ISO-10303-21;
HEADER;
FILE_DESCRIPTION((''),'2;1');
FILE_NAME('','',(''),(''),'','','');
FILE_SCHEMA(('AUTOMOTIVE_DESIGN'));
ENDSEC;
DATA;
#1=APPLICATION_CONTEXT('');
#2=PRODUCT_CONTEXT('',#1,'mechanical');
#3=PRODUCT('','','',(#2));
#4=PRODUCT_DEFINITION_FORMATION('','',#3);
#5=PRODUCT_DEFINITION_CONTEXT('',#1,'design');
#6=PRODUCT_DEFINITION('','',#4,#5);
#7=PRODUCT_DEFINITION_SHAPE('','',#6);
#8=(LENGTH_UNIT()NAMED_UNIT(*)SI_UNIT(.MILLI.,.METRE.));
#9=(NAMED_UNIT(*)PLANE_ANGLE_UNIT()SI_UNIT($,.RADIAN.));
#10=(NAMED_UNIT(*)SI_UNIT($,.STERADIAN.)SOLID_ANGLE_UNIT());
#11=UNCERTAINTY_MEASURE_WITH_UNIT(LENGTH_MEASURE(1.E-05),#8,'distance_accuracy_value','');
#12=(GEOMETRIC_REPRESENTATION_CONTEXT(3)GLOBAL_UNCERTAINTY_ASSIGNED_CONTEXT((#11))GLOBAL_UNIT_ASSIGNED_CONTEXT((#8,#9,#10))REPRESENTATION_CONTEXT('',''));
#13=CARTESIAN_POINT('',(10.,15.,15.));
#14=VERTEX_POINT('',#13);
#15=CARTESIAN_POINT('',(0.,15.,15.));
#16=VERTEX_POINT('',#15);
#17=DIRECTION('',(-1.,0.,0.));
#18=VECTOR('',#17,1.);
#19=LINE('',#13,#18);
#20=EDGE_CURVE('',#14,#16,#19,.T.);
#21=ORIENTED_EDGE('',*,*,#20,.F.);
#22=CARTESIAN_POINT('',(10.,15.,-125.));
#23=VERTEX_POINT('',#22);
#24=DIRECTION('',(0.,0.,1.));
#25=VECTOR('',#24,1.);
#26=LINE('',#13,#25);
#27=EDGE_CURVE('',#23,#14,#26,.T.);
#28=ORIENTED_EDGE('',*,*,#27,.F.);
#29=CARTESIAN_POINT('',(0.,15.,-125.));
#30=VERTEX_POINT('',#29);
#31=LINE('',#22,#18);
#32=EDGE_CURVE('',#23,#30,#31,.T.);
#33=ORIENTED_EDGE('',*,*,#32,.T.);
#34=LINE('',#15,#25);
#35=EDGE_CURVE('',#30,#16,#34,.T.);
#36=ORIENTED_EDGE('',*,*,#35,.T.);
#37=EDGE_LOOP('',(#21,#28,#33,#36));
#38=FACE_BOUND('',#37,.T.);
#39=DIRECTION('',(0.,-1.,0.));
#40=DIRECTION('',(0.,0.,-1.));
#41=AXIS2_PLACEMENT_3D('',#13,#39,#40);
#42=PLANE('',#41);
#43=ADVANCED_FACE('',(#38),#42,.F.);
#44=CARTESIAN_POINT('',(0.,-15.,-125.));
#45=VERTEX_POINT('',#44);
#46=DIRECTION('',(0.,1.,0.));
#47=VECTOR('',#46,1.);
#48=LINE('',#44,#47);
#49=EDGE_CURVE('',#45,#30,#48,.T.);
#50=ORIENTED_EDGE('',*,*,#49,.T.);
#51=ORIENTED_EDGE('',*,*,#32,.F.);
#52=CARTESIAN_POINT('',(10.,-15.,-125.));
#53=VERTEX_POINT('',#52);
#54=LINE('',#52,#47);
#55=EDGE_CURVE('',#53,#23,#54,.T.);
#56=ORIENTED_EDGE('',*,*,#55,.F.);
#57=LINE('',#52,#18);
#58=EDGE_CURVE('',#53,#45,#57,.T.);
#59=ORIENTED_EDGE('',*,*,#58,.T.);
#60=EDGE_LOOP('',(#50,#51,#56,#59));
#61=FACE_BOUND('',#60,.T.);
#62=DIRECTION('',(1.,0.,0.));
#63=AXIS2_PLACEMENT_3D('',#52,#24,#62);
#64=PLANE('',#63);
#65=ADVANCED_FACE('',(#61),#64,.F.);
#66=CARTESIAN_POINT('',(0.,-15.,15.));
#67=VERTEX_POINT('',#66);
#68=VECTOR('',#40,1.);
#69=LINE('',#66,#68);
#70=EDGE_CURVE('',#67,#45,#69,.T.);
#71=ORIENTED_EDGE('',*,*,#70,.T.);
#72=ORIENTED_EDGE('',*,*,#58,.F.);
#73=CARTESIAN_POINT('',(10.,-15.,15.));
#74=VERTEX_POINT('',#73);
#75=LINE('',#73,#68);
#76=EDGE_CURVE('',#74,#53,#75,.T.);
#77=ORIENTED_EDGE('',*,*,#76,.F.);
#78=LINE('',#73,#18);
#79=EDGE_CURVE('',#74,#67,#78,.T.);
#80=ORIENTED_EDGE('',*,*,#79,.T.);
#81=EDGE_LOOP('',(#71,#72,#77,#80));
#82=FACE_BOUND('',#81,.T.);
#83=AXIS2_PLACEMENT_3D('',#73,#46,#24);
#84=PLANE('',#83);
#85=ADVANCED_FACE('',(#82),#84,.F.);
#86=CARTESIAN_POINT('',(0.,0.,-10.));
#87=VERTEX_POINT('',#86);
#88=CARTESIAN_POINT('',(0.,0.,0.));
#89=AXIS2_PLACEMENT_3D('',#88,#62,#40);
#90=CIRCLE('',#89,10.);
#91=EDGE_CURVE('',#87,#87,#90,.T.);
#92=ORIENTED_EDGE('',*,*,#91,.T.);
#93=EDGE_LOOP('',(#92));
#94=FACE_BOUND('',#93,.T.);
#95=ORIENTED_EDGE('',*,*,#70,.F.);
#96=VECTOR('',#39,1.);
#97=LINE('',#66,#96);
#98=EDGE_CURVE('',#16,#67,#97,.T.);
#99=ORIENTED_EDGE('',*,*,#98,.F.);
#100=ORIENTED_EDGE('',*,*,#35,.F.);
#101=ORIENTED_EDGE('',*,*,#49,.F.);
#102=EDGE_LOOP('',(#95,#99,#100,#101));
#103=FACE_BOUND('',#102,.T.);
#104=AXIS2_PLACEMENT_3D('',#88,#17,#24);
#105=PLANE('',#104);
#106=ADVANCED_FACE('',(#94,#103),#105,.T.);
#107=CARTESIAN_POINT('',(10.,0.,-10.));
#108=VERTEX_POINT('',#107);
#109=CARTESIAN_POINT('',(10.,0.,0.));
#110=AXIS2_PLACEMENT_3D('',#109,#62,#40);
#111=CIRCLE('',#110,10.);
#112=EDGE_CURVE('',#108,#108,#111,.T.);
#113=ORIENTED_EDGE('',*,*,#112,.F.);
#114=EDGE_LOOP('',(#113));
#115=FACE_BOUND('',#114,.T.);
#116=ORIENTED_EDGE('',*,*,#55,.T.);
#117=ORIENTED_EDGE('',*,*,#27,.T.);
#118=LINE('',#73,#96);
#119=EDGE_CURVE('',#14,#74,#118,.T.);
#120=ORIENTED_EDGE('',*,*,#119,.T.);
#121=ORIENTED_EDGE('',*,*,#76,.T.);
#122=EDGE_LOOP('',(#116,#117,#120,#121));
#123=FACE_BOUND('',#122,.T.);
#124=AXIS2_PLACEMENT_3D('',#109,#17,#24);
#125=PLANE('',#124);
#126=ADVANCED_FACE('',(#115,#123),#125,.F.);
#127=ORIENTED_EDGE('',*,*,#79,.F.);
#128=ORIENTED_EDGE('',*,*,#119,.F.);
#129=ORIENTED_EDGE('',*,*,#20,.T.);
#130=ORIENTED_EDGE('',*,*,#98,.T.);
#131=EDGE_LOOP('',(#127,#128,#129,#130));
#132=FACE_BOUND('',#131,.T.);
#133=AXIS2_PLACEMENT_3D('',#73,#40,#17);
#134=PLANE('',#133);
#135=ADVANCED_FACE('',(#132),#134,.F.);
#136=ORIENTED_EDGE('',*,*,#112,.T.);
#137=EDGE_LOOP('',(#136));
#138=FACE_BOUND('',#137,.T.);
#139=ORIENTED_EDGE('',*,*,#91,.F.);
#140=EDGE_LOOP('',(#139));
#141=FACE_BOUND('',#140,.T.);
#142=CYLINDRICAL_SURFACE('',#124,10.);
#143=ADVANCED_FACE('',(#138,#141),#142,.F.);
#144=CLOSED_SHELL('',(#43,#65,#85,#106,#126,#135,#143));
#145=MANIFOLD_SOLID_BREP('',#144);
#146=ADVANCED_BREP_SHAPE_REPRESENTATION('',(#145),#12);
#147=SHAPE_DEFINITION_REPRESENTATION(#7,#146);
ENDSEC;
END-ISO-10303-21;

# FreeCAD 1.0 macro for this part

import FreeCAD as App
import Part
import Sketcher

V = App.Vector


def add_polygon(sketch, points):
    """Adds a closed chain of lines whose ends are joined by coincident constraints."""
    first, n = sketch.GeometryCount, len(points)
    for a, b in zip(points, points[1:] + points[:1]):
        sketch.addGeometry(Part.LineSegment(App.Vector(*a, 0), App.Vector(*b, 0)), False)
    for i in range(n):
        sketch.addConstraint(Sketcher.Constraint("Coincident", first + i, 2, first + (i + 1) % n, 1))

doc = App.newDocument("Part")
body = doc.addObject("PartDesign::Body", "Body")

# Sketch on YZ plane
sketch1 = doc.addObject("Sketcher::SketchObject", "Sketch")
body.addObject(sketch1)
sketch1.AttachmentSupport = (doc.YZ_Plane, [""])
sketch1.MapMode = "FlatFace"
add_polygon(sketch1, [(15, 15), (-15, 15), (-15, -125), (15, -125)])  # lines 0-3
sketch1.addGeometry(Part.Circle(V(0, 0, 0), V(0, 0, 1), 10), False)  # 4
sketch1.addConstraint([
    Sketcher.Constraint("Horizontal", 0),
    Sketcher.Constraint("Vertical", 1),
    Sketcher.Constraint("Horizontal", 2),
    Sketcher.Constraint("Vertical", 3),
    Sketcher.Constraint("Coincident", 4, 3, -1, 1),
    Sketcher.Constraint("Diameter", 4, 20.0),
    Sketcher.Constraint("DistanceX", 0, 2, 0, 1, 30.0),
    Sketcher.Constraint("DistanceY", 1, 2, 1, 1, 140.0),
    Sketcher.Constraint("DistanceX", 0, 2, -1, 1, 15.0),
    Sketcher.Constraint("DistanceY", -1, 1, 0, 2, 15.0),
])
pad1 = doc.addObject("PartDesign::Pad", "Pad")
body.addObject(pad1)
pad1.Profile = sketch1
pad1.Length = 10

doc.recompute()
